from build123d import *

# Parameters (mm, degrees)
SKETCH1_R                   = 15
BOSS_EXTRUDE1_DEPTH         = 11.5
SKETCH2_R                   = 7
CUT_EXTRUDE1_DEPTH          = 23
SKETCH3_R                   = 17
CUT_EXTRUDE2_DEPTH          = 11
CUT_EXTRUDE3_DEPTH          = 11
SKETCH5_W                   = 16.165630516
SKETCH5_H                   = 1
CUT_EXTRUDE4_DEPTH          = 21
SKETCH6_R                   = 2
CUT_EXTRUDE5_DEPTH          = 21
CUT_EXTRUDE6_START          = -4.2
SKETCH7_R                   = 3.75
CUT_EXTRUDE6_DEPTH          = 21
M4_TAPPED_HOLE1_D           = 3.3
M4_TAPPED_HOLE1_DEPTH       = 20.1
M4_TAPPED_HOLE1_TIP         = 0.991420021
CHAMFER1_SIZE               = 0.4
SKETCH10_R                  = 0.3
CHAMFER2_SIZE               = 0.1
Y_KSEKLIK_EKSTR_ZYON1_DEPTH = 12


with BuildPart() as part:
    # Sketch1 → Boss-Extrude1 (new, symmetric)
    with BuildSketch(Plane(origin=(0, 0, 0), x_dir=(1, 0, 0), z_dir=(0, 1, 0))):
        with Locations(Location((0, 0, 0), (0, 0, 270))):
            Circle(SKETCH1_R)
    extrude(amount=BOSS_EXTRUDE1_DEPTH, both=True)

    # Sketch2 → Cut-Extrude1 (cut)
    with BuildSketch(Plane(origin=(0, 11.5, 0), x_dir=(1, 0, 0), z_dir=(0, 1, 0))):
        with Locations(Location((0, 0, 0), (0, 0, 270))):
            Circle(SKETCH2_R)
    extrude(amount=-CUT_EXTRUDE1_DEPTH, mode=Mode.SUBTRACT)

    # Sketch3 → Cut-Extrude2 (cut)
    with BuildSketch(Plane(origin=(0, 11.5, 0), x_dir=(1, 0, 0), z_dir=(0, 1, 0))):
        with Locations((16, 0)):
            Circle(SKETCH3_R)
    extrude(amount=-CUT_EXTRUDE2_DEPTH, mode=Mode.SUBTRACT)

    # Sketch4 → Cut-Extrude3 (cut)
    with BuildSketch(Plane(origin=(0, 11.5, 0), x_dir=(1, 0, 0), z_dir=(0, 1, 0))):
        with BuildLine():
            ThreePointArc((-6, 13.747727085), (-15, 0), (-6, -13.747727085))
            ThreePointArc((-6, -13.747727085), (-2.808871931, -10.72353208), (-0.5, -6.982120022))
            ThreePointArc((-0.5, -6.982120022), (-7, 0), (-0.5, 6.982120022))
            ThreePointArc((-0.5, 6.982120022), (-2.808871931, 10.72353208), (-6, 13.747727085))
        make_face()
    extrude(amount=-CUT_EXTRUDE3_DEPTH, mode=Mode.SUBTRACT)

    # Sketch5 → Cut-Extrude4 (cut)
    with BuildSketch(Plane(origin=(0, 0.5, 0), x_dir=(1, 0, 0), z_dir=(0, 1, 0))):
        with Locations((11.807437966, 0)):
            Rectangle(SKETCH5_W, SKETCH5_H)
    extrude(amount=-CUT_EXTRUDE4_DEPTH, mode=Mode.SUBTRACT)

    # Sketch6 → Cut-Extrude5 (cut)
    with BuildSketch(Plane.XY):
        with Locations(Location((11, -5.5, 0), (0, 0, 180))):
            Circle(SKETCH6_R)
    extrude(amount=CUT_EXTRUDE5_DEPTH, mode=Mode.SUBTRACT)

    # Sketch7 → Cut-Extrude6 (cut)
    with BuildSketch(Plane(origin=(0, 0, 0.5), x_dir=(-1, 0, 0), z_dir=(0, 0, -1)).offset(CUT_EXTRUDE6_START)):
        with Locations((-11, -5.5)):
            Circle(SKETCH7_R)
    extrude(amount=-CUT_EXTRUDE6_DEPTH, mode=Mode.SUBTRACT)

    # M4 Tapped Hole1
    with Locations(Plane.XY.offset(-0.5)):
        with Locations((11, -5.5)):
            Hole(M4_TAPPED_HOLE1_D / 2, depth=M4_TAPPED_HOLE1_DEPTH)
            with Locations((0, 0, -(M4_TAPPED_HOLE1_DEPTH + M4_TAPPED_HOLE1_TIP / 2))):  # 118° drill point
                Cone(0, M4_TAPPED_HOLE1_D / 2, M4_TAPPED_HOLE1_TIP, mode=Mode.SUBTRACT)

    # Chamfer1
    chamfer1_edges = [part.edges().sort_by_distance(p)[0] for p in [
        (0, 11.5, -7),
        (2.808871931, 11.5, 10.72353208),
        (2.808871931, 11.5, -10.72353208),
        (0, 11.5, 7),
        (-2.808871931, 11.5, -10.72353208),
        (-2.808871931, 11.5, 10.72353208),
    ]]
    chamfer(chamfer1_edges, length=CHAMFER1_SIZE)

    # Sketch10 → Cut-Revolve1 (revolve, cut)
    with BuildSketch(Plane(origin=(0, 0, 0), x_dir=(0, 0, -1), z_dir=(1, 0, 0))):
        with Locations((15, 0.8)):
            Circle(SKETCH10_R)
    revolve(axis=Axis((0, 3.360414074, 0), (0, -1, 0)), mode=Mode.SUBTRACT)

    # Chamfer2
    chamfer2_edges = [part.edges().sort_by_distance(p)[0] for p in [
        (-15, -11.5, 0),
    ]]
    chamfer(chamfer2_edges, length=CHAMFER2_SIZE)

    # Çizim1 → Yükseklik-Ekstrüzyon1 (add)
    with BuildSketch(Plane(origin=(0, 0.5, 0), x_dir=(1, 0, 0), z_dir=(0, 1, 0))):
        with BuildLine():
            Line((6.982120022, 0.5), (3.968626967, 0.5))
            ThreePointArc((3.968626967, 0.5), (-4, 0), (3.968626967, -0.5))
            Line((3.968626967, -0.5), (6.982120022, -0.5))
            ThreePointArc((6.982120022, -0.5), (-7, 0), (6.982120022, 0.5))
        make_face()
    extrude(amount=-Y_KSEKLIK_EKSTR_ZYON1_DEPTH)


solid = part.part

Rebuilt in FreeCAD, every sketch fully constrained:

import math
import FreeCAD as App
import Part
import Sketcher
Q = App.Units.Quantity


def edges_at(feature, points):
    """Names of the edges that pass closest to the given points."""
    edges = feature.Shape.Edges
    near = lambda p: min(range(len(edges)), key=lambda i: edges[i].distToShape(Part.Vertex(*p))[0])
    return sorted({f"Edge{near(p) + 1}" for p in points})


def add_polygon(sketch, points):
    """Adds a closed chain of lines whose ends are joined by coincident constraints."""
    first, n = sketch.GeometryCount, len(points)
    for a, b in zip(points, points[1:] + points[:1]):
        sketch.addGeometry(Part.LineSegment(App.Vector(*a, 0), App.Vector(*b, 0)), False)
    for i in range(n):
        sketch.addConstraint(Sketcher.Constraint("Coincident", first + i, 2, first + (i + 1) % n, 1))

doc = App.newDocument("Part")
body = doc.addObject("PartDesign::Body", "Body")

sketch1 = body.newObject("Sketcher::SketchObject", "Sketch")
sketch1.AttachmentSupport = (doc.getObject("XZ_Plane"), [""])
sketch1.MapMode = "FlatFace"
sketch1.addGeometry(Part.Circle(App.Vector(0, 0, 0), App.Vector(0, 0, 1), 15), False)
sketch1.addConstraint([
    Sketcher.Constraint("Coincident", 0, 3, -1, 1),
    Sketcher.Constraint("Diameter", 0, Q("30 mm")),
])
pad1 = body.newObject("PartDesign::Pad", "Pad")
pad1.Profile = sketch1
pad1.Length = 23
pad1.Midplane = True

sketch2 = body.newObject("Sketcher::SketchObject", "Sketch001")
sketch2.AttachmentSupport = (doc.getObject("XZ_Plane"), [""])
sketch2.MapMode = "FlatFace"
sketch2.AttachmentOffset = App.Placement(App.Vector(0, 0, -11.5), App.Rotation())
sketch2.addGeometry(Part.Circle(App.Vector(0, 0, 0), App.Vector(0, 0, 1), 7), False)
sketch2.addConstraint([
    Sketcher.Constraint("Coincident", 0, 3, -1, 1),
    Sketcher.Constraint("Diameter", 0, Q("14 mm")),
])
pocket1 = body.newObject("PartDesign::Pocket", "Pocket")
pocket1.Profile = sketch2
pocket1.Length = 23
pocket1.Reversed = True

sketch3 = body.newObject("Sketcher::SketchObject", "Sketch002")
sketch3.AttachmentSupport = (doc.getObject("XZ_Plane"), [""])
sketch3.MapMode = "FlatFace"
sketch3.AttachmentOffset = App.Placement(App.Vector(0, 0, -11.5), App.Rotation())
sketch3.addGeometry(Part.Circle(App.Vector(16, 0, 0), App.Vector(0, 0, 1), 17), False)
sketch3.addConstraint([
    Sketcher.Constraint("PointOnObject", 0, 3, -1),
    Sketcher.Constraint("Diameter", 0, Q("34 mm")),
    Sketcher.Constraint("DistanceX", -1, 1, 0, 3, Q("16 mm")),
])
pocket2 = body.newObject("PartDesign::Pocket", "Pocket001")
pocket2.Profile = sketch3
pocket2.Length = 11
pocket2.Reversed = True

sketch4 = body.newObject("Sketcher::SketchObject", "Sketch003")
sketch4.AttachmentSupport = (doc.getObject("XZ_Plane"), [""])
sketch4.MapMode = "FlatFace"
sketch4.AttachmentOffset = App.Placement(App.Vector(0, 0, -11.5), App.Rotation())
sketch4.addGeometry([
    Part.ArcOfCircle(Part.Circle(App.Vector(0, 0, 0), App.Vector(0, 0, 1), 15), math.radians(113.578178), math.radians(246.421822)),
    Part.ArcOfCircle(Part.Circle(App.Vector(-16, 0, 0), App.Vector(0, 0, 1), 17), math.radians(24.249629), math.radians(53.968121)),
    Part.ArcOfCircle(Part.Circle(App.Vector(0, 0, 0), App.Vector(0, 0, 1), 7), math.radians(94.096044), math.radians(265.903956)),
    Part.ArcOfCircle(Part.Circle(App.Vector(-16, 0, 0), App.Vector(0, 0, 1), 17), math.radians(-53.968121), math.radians(-24.249629)),
], False)
sketch4.addConstraint([
    Sketcher.Constraint("Coincident", 0, 1, 1, 2),
    Sketcher.Constraint("Coincident", 1, 1, 2, 1),
    Sketcher.Constraint("Coincident", 2, 2, 3, 2),
    Sketcher.Constraint("Coincident", 3, 1, 0, 2),
    Sketcher.Constraint("Coincident", 0, 3, -1, 1),
    Sketcher.Constraint("Coincident", 2, 3, -1, 1),
    Sketcher.Constraint("Coincident", 3, 3, 1, 3),
    Sketcher.Constraint("Equal", 1, 3),
    Sketcher.Constraint("PointOnObject", 1, 3, -1),
    Sketcher.Constraint("Radius", 0, Q("15 mm")),
    Sketcher.Constraint("Radius", 1, Q("17 mm")),
    Sketcher.Constraint("Radius", 2, Q("7 mm")),
    Sketcher.Constraint("DistanceX", 1, 3, -1, 1, Q("16 mm")),
])
pocket3 = body.newObject("PartDesign::Pocket", "Pocket002")
pocket3.Profile = sketch4
pocket3.Length = 11
pocket3.Reversed = True

sketch5 = body.newObject("Sketcher::SketchObject", "Sketch004")
sketch5.AttachmentSupport = (doc.getObject("XZ_Plane"), [""])
sketch5.MapMode = "FlatFace"
sketch5.AttachmentOffset = App.Placement(App.Vector(0, 0, -0.5), App.Rotation())
add_polygon(sketch5, [(3.724623, -0.5), (3.724623, 0.5), (19.890253, 0.5), (19.890253, -0.5)])
sketch5.addConstraint([
    Sketcher.Constraint("Vertical", 0),
    Sketcher.Constraint("Horizontal", 1),
    Sketcher.Constraint("Vertical", 2),
    Sketcher.Constraint("Horizontal", 3),
    Sketcher.Constraint("DistanceY", 0, 1, 0, 2, Q("1 mm")),
    Sketcher.Constraint("DistanceY", -1, 1, 0, 2, Q("0.5 mm")),
    Sketcher.Constraint("DistanceX", 1, 1, 1, 2, Q("16.165631 mm")),
    Sketcher.Constraint("DistanceX", -1, 1, 0, 2, Q("3.724623 mm")),
])
pocket4 = body.newObject("PartDesign::Pocket", "Pocket003")
pocket4.Profile = sketch5
pocket4.Length = 21
pocket4.Reversed = True

sketch6 = body.newObject("Sketcher::SketchObject", "Sketch005")
sketch6.AttachmentSupport = (doc.getObject("XY_Plane"), [""])
sketch6.MapMode = "FlatFace"
sketch6.addGeometry(Part.Circle(App.Vector(11, -5.5, 0), App.Vector(0, 0, 1), 2), False)
sketch6.addConstraint([
    Sketcher.Constraint("Diameter", 0, Q("4 mm")),
    Sketcher.Constraint("DistanceX", -1, 1, 0, 3, Q("11 mm")),
    Sketcher.Constraint("DistanceY", 0, 3, -1, 1, Q("5.5 mm")),
])
pocket5 = body.newObject("PartDesign::Pocket", "Pocket004")
pocket5.Profile = sketch6
pocket5.Length = 21
pocket5.Reversed = True

sketch7 = body.newObject("Sketcher::SketchObject", "Sketch006")
sketch7.AttachmentSupport = (doc.getObject("XY_Plane"), [""])
sketch7.MapMode = "FlatFace"
sketch7.AttachmentOffset = App.Placement(App.Vector(0, 0, 4.7), App.Rotation())
sketch7.addGeometry(Part.Circle(App.Vector(11, -5.5, 0), App.Vector(0, 0, 1), 3.75), False)
sketch7.addConstraint([
    Sketcher.Constraint("Diameter", 0, Q("7.5 mm")),
    Sketcher.Constraint("DistanceX", -1, 1, 0, 3, Q("11 mm")),
    Sketcher.Constraint("DistanceY", 0, 3, -1, 1, Q("5.5 mm")),
])
pocket6 = body.newObject("PartDesign::Pocket", "Pocket005")
pocket6.Profile = sketch7
pocket6.Length = 21
pocket6.Reversed = True

sketch8 = body.newObject("Sketcher::SketchObject", "Sketch007")
sketch8.AttachmentSupport = (doc.getObject("XY_Plane"), [""])
sketch8.MapMode = "FlatFace"
sketch8.AttachmentOffset = App.Placement(App.Vector(0, 0, -0.5), App.Rotation())
sketch8.addGeometry(Part.Circle(App.Vector(11, -5.5, 0), App.Vector(0, 0, 1), 1.65), False)
sketch8.addConstraint([
    Sketcher.Constraint("Diameter", 0, Q("3.3 mm")),
    Sketcher.Constraint("DistanceX", -1, 1, 0, 3, Q("11 mm")),
    Sketcher.Constraint("DistanceY", 0, 3, -1, 1, Q("5.5 mm")),
])
doc.recompute()
hole = body.newObject("PartDesign::Hole", "Hole")
hole.Profile = sketch8
hole.ThreadType = "None"
hole.Diameter = 3.3
hole.DepthType = "Dimension"
hole.Depth = 20.1
hole.DrillPoint = "Angled"
hole.DrillPointAngle = 118
doc.recompute()

chamfer = body.newObject("PartDesign::Chamfer", "Chamfer")
chamfer.Base = (hole, edges_at(hole, [
    (0, 11.5, -7),
    (2.809, 11.5, 10.724),
    (2.809, 11.5, -10.724),
    (0, 11.5, 7),
    (-2.809, 11.5, -10.724),
    (-2.809, 11.5, 10.724),
]))
chamfer.Size = 0.4

sketch9 = body.newObject("Sketcher::SketchObject", "Sketch008")
sketch9.AttachmentSupport = (doc.getObject("YZ_Plane"), [""])
sketch9.MapMode = "FlatFace"
sketch9.addGeometry(Part.Circle(App.Vector(0.8, -15, 0), App.Vector(0, 0, 1), 0.3), False)
sketch9.addConstraint([
    Sketcher.Constraint("Diameter", 0, Q("0.6 mm")),
    Sketcher.Constraint("DistanceY", 0, 3, -1, 1, Q("15 mm")),
    Sketcher.Constraint("DistanceX", -1, 1, 0, 3, Q("0.8 mm")),
])
groove = body.newObject("PartDesign::Groove", "Groove")
groove.Profile = sketch9
groove.ReferenceAxis = (sketch9, ["H_Axis"])
groove.Angle = 360
doc.recompute()

chamfer2 = body.newObject("PartDesign::Chamfer", "Chamfer001")
chamfer2.Base = (groove, edges_at(groove, [(-15, -11.5, 0)]))
chamfer2.Size = 0.1

sketch10 = body.newObject("Sketcher::SketchObject", "Sketch009")
sketch10.AttachmentSupport = (doc.getObject("XZ_Plane"), [""])
sketch10.MapMode = "FlatFace"
sketch10.AttachmentOffset = App.Placement(App.Vector(0, 0, -0.5), App.Rotation())
sketch10.addGeometry([
    Part.LineSegment(App.Vector(3.968627, -0.5, 0), App.Vector(6.98212, -0.5, 0)),
    Part.ArcOfCircle(Part.Circle(App.Vector(0, 0, 0), App.Vector(0, 0, 1), 7), math.radians(4.096044), math.radians(355.903956)),
    Part.LineSegment(App.Vector(6.98212, 0.5, 0), App.Vector(3.968627, 0.5, 0)),
    Part.ArcOfCircle(Part.Circle(App.Vector(0, 0, 0), App.Vector(0, 0, 1), 4), math.radians(7.180756), math.radians(352.819244)),
], False)
sketch10.addConstraint([
    Sketcher.Constraint("Coincident", 0, 2, 1, 2),
    Sketcher.Constraint("Coincident", 1, 1, 2, 1),
    Sketcher.Constraint("Coincident", 2, 2, 3, 1),
    Sketcher.Constraint("Coincident", 3, 2, 0, 1),
    Sketcher.Constraint("Horizontal", 0),
    Sketcher.Constraint("Horizontal", 2),
    Sketcher.Constraint("Coincident", 1, 3, -1, 1),
    Sketcher.Constraint("Coincident", 3, 3, -1, 1),
    Sketcher.Constraint("Vertical", 0, 2, 1, 1),
    Sketcher.Constraint("Radius", 1, Q("7 mm")),
    Sketcher.Constraint("Radius", 3, Q("4 mm")),
    Sketcher.Constraint("DistanceY", 0, 2, 1, 1, Q("1 mm")),
])
pad2 = body.newObject("PartDesign::Pad", "Pad001")
pad2.Profile = sketch10
pad2.Length = 12

doc.recompute()
